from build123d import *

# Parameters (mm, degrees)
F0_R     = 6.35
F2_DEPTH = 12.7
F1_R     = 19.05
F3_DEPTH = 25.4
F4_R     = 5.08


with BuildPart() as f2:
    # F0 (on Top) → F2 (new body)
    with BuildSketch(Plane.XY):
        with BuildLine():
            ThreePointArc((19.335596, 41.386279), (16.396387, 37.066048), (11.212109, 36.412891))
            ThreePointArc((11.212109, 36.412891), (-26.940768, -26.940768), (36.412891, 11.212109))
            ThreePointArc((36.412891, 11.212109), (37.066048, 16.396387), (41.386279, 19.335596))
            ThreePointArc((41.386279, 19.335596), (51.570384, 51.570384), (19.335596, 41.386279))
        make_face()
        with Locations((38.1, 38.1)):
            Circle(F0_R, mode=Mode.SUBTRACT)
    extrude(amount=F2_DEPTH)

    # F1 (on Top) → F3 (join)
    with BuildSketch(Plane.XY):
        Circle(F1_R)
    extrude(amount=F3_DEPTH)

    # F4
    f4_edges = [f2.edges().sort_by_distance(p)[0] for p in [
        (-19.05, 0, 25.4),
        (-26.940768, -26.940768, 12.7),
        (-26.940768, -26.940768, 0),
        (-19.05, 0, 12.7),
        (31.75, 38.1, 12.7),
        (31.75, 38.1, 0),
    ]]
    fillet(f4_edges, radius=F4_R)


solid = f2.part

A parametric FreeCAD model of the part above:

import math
import FreeCAD as App
import Part
import Sketcher

V = App.Vector
Q = App.Units.Quantity


def edges_at(feature, points):
    """Names of the edges that pass closest to the given points."""
    edges = feature.Shape.Edges
    near = lambda p: min(range(len(edges)), key=lambda i: edges[i].distToShape(Part.Vertex(*p))[0])
    return sorted({f"Edge{near(p) + 1}" for p in points})

doc = App.newDocument("Part")
params = doc.addObject("Spreadsheet::Sheet", "Params")
for row, (alias, value) in enumerate([
    ("sketch1_diameter", "0.5 in"),
    ("sketch1_radius", "1.5 in"),
    ("sketch1_radius2", "0.75 in"),
    ("pad1_length", "0.5 in"),
    ("sketch2_diameter", "1.5 in"),
    ("pad2_length", "1 in"),
    ("fillet_radius", "0.2 in"),
], start=1):
    params.set(f"A{row}", alias)
    params.set(f"B{row}", "=" + value)
    params.setAlias(f"B{row}", alias)

body = doc.addObject("PartDesign::Body", "Body")

# Sketch on XY plane
sketch1 = doc.addObject("Sketcher::SketchObject", "Sketch")
body.addObject(sketch1)
sketch1.AttachmentSupport = (doc.XY_Plane, [""])
sketch1.MapMode = "FlatFace"
sketch1.addGeometry([
    Part.ArcOfCircle(Part.Circle(V(13.080795, 42.481705, 0), V(0, 0, 1), 6.35), math.radians(-107.114445), math.radians(-9.933677)),  # 0
    Part.ArcOfCircle(Part.Circle(V(0, 0, 0), V(0, 0, 1), 38.1), math.radians(72.885568), math.radians(377.114432)),  # 1
    Part.ArcOfCircle(Part.Circle(V(42.481705, 13.080795, 0), V(0, 0, 1), 6.35), math.radians(99.933677), math.radians(197.114445)),  # 2
    Part.ArcOfCircle(Part.Circle(V(38.1, 38.1, 0), V(0, 0, 1), 19.05), math.radians(-80.066323), math.radians(170.066323)),  # 3
    Part.Circle(V(38.1, 38.1, 0), V(0, 0, 1), 6.35),  # 4
], False)
sketch1.addConstraint([
    Sketcher.Constraint("Tangent", 0, 1, 1, 1),
    Sketcher.Constraint("Tangent", 1, 2, 2, 2),
    Sketcher.Constraint("Tangent", 2, 1, 3, 1),
    Sketcher.Constraint("Tangent", 3, 2, 0, 2),
    Sketcher.Constraint("Coincident", 1, 3, -1, 1),
    Sketcher.Constraint("Coincident", 4, 3, 3, 3),
    Sketcher.Constraint("Equal", 0, 2),
    Sketcher.Constraint("Equal", 2, 4),
    Sketcher.Constraint("Diameter", 4, Q("0.5 in")),
    Sketcher.Constraint("Radius", 1, Q("1.5 in")),
    Sketcher.Constraint("Radius", 3, Q("0.75 in")),
    Sketcher.Constraint("DistanceX", -1, 1, 3, 3, Q("1.5 in")),
    Sketcher.Constraint("DistanceY", -1, 1, 3, 3, Q("1.5 in")),
])
sketch1.setExpression("Constraints[8]", "Params.sketch1_diameter")
sketch1.setExpression("Constraints[9]", "Params.sketch1_radius")
sketch1.setExpression("Constraints[10]", "Params.sketch1_radius2")
pad1 = doc.addObject("PartDesign::Pad", "Pad")
body.addObject(pad1)
pad1.Profile = sketch1
pad1.setExpression("Length", "Params.pad1_length")

# Sketch on XY plane
sketch2 = doc.addObject("Sketcher::SketchObject", "Sketch001")
body.addObject(sketch2)
sketch2.AttachmentSupport = (doc.XY_Plane, [""])
sketch2.MapMode = "FlatFace"
sketch2.addGeometry(Part.Circle(V(0, 0, 0), V(0, 0, 1), 19.05), False)
sketch2.addConstraint([
    Sketcher.Constraint("Coincident", 0, 3, -1, 1),
    Sketcher.Constraint("Diameter", 0, Q("1.5 in")),
])
sketch2.setExpression("Constraints[1]", "Params.sketch2_diameter")
pad2 = doc.addObject("PartDesign::Pad", "Pad001")
body.addObject(pad2)
pad2.Profile = sketch2
pad2.setExpression("Length", "Params.pad2_length")
doc.recompute()

fillet = doc.addObject("PartDesign::Fillet", "Fillet")
body.addObject(fillet)
fillet.Base = (pad2, edges_at(pad2, [
    (-19.05, 0, 25.4),
    (-26.941, -26.941, 12.7),
    (-26.941, -26.941, 0),
    (-19.05, 0, 12.7),
    (31.75, 38.1, 12.7),
    (31.75, 38.1, 0),
]))
fillet.setExpression("Radius", "Params.fillet_radius")

doc.recompute()
